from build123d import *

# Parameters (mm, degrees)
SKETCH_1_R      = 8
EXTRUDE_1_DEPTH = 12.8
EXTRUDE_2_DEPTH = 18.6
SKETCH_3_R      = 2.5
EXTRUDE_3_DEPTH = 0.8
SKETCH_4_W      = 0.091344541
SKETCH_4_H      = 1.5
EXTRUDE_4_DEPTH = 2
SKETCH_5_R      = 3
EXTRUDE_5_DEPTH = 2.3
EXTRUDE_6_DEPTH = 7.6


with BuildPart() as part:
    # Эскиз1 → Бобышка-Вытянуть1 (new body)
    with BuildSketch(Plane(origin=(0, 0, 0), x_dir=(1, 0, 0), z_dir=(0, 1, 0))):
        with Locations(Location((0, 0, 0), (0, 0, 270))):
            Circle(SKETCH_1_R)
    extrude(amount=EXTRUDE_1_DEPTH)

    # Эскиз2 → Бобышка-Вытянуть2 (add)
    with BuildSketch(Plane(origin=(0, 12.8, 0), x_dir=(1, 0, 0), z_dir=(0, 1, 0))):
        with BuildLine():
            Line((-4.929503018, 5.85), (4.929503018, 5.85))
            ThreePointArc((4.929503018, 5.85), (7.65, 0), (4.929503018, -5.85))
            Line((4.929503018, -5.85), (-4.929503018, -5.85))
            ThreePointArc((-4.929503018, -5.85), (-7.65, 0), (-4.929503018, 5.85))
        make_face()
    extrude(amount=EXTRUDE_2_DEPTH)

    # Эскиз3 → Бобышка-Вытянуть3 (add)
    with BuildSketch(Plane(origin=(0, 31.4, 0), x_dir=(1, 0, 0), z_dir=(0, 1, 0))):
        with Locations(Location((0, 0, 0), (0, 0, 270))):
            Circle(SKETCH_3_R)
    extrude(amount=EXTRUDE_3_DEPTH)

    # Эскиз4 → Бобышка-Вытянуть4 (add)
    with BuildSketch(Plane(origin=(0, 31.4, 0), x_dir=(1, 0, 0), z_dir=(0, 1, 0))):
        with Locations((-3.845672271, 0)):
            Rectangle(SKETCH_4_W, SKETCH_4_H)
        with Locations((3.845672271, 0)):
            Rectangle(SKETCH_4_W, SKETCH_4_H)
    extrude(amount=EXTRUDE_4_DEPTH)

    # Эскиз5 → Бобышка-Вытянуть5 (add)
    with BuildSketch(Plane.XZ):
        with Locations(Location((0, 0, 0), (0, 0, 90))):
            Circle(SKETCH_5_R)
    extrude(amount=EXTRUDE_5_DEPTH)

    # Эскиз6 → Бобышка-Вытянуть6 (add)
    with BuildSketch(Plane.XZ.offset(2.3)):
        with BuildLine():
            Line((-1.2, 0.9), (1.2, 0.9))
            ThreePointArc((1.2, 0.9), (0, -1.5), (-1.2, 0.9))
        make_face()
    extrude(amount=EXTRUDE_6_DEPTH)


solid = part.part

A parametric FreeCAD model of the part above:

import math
import FreeCAD as App
import Part
import Sketcher

V = App.Vector

doc = App.newDocument("Part")
params = doc.addObject("Spreadsheet::Sheet", "Params")
for row, (alias, value) in enumerate([
    ("sketch1_diameter", "16 mm"),
    ("pad1_length", "12.8 mm"),
    ("sketch2_radius", "7.65 mm"),
    ("pad2_length", "18.6 mm"),
    ("sketch3_diameter", "5 mm"),
    ("pad3_length", "0.8 mm"),
    ("sketch4_height", "1.5 mm"),
    ("pad4_length", "2 mm"),
    ("sketch5_diameter", "6 mm"),
    ("pad5_length", "2.3 mm"),
    ("sketch6_radius", "1.5 mm"),
    ("sketch6_width", "2.4 mm"),
    ("pad6_length", "7.6 mm"),
], start=1):
    params.set(f"A{row}", alias)
    params.set(f"B{row}", "=" + value)
    params.setAlias(f"B{row}", alias)

body = doc.addObject("PartDesign::Body", "Body")

# Sketch on XZ plane
sketch1 = body.newObject("Sketcher::SketchObject", "Sketch")
sketch1.AttachmentSupport = (doc.getObject("XZ_Plane"), [""])
sketch1.MapMode = "FlatFace"
sketch1.addGeometry(Part.Circle(V(0, 0, 0), V(0, 0, 1), 8), False)
sketch1.addConstraint([
    Sketcher.Constraint("Coincident", 0, 3, -1, 1),
    Sketcher.Constraint("Diameter", 0, 16.0),
])
sketch1.setExpression("Constraints[1]", "Params.sketch1_diameter")
pad1 = body.newObject("PartDesign::Pad", "Pad")
pad1.Profile = sketch1
pad1.setExpression("Length", "Params.pad1_length")
pad1.Reversed = True

# Sketch on XZ plane
sketch2 = body.newObject("Sketcher::SketchObject", "Sketch001")
sketch2.AttachmentSupport = (doc.getObject("XZ_Plane"), [""])
sketch2.MapMode = "FlatFace"
sketch2.AttachmentOffset = App.Placement(V(0, 0, -12.8), App.Rotation())
sketch2.addGeometry([
    Part.LineSegment(V(5, -6, 0), V(-5, -6, 0)),
    Part.ArcOfCircle(Part.Circle(V(0, 0, 0), V(0, 0, 1), 8), math.radians(130), math.radians(230)),
    Part.LineSegment(V(-5, 6, 0), V(5, 6, 0)),
    Part.ArcOfCircle(Part.Circle(V(0, 0, 0), V(0, 0, 1), 8), math.radians(-50), math.radians(50)),
], False)
sketch2.addConstraint([
    Sketcher.Constraint("Coincident", 0, 2, 1, 2),
    Sketcher.Constraint("Coincident", 1, 1, 2, 1),
    Sketcher.Constraint("Coincident", 2, 2, 3, 2),
    Sketcher.Constraint("Coincident", 3, 1, 0, 1),
    Sketcher.Constraint("Horizontal", 0),
    Sketcher.Constraint("Horizontal", 2),
    Sketcher.Constraint("Coincident", 1, 3, -1, 1),
    Sketcher.Constraint("Coincident", 3, 3, -1, 1),
    Sketcher.Constraint("Equal", 1, 3),
    Sketcher.Constraint("Vertical", 0, 2, 1, 1),
    Sketcher.Constraint("Radius", 1, 7.65),
    Sketcher.Constraint("DistanceY", 0, 2, 1, 1, 11.7),
])
sketch2.setExpression("Constraints[10]", "Params.sketch2_radius")
pad2 = body.newObject("PartDesign::Pad", "Pad001")
pad2.Profile = sketch2
pad2.setExpression("Length", "Params.pad2_length")
pad2.Reversed = True

# Sketch on XZ plane
sketch3 = body.newObject("Sketcher::SketchObject", "Sketch002")
sketch3.AttachmentSupport = (doc.getObject("XZ_Plane"), [""])
sketch3.MapMode = "FlatFace"
sketch3.AttachmentOffset = App.Placement(V(0, 0, -31.4), App.Rotation())
sketch3.addGeometry(Part.Circle(V(0, 0, 0), V(0, 0, 1), 2.5), False)
sketch3.addConstraint([
    Sketcher.Constraint("Coincident", 0, 3, -1, 1),
    Sketcher.Constraint("Diameter", 0, 5.0),
])
sketch3.setExpression("Constraints[1]", "Params.sketch3_diameter")
pad3 = body.newObject("PartDesign::Pad", "Pad002")
pad3.Profile = sketch3
pad3.setExpression("Length", "Params.pad3_length")
pad3.Reversed = True

# Sketch on XZ plane
sketch4 = body.newObject("Sketcher::SketchObject", "Sketch003")
sketch4.AttachmentSupport = (doc.getObject("XZ_Plane"), [""])
sketch4.MapMode = "FlatFace"
sketch4.AttachmentOffset = App.Placement(V(0, 0, -31.4), App.Rotation())
sketch4.addGeometry([
    Part.LineSegment(V(-3.89, -0.75, 0), V(-3.89, 0.75, 0)),  # 0
    Part.LineSegment(V(-3.89, 0.75, 0), V(-3.8, 0.75, 0)),  # 1
    Part.LineSegment(V(-3.8, 0.75, 0), V(-3.8, -0.75, 0)),  # 2
    Part.LineSegment(V(-3.8, -0.75, 0), V(-3.89, -0.75, 0)),  # 3
    Part.LineSegment(V(3.8, -0.75, 0), V(3.8, 0.75, 0)),  # 4
    Part.LineSegment(V(3.8, 0.75, 0), V(3.89, 0.75, 0)),  # 5
    Part.LineSegment(V(3.89, 0.75, 0), V(3.89, -0.75, 0)),  # 6
    Part.LineSegment(V(3.89, -0.75, 0), V(3.8, -0.75, 0)),  # 7
], False)
sketch4.addConstraint([
    Sketcher.Constraint("Coincident", 0, 2, 1, 1),
    Sketcher.Constraint("Coincident", 1, 2, 2, 1),
    Sketcher.Constraint("Coincident", 2, 2, 3, 1),
    Sketcher.Constraint("Coincident", 3, 2, 0, 1),
    Sketcher.Constraint("Coincident", 4, 2, 5, 1),
    Sketcher.Constraint("Coincident", 5, 2, 6, 1),
    Sketcher.Constraint("Coincident", 6, 2, 7, 1),
    Sketcher.Constraint("Coincident", 7, 2, 4, 1),
    Sketcher.Constraint("Vertical", 0),
    Sketcher.Constraint("Horizontal", 1),
    Sketcher.Constraint("Vertical", 2),
    Sketcher.Constraint("Horizontal", 3),
    Sketcher.Constraint("Vertical", 4),
    Sketcher.Constraint("Horizontal", 5),
    Sketcher.Constraint("Vertical", 6),
    Sketcher.Constraint("Horizontal", 7),
    Sketcher.Constraint("Symmetric", 2, 2, 4, 2, -1, 1),
    Sketcher.Constraint("Symmetric", 0, 2, 6, 2, -1, 1),
    Sketcher.Constraint("Horizontal", 1, 2, 4, 2),
    Sketcher.Constraint("DistanceY", 0, 1, 0, 2, 1.5),
    Sketcher.Constraint("DistanceX", 1, 2, -1, 1, 3.8),
    Sketcher.Constraint("DistanceX", 1, 1, 1, 2, 0.091345),
])
sketch4.setExpression("Constraints[19]", "Params.sketch4_height")
pad4 = body.newObject("PartDesign::Pad", "Pad003")
pad4.Profile = sketch4
pad4.setExpression("Length", "Params.pad4_length")
pad4.Reversed = True

# Sketch on XZ plane
sketch5 = body.newObject("Sketcher::SketchObject", "Sketch004")
sketch5.AttachmentSupport = (doc.getObject("XZ_Plane"), [""])
sketch5.MapMode = "FlatFace"
sketch5.addGeometry(Part.Circle(V(0, 0, 0), V(0, 0, 1), 3), False)
sketch5.addConstraint([
    Sketcher.Constraint("Coincident", 0, 3, -1, 1),
    Sketcher.Constraint("Diameter", 0, 6.0),
])
sketch5.setExpression("Constraints[1]", "Params.sketch5_diameter")
pad5 = body.newObject("PartDesign::Pad", "Pad004")
pad5.Profile = sketch5
pad5.setExpression("Length", "Params.pad5_length")

# Sketch on XZ plane
sketch6 = body.newObject("Sketcher::SketchObject", "Sketch005")
sketch6.AttachmentSupport = (doc.getObject("XZ_Plane"), [""])
sketch6.MapMode = "FlatFace"
sketch6.AttachmentOffset = App.Placement(V(0, 0, 2.3), App.Rotation())
sketch6.addGeometry([
    Part.LineSegment(V(1.2, 0.9, 0), V(-1.2, 0.9, 0)),
    Part.ArcOfCircle(Part.Circle(V(0, 0, 0), V(0, 0, 1), 1.5), math.radians(143), math.radians(397)),
], False)
sketch6.addConstraint([
    Sketcher.Constraint("Coincident", 0, 1, 1, 2),
    Sketcher.Constraint("Coincident", 1, 1, 0, 2),
    Sketcher.Constraint("Horizontal", 0),
    Sketcher.Constraint("Coincident", 1, 3, -1, 1),
    Sketcher.Constraint("Radius", 1, 1.5),
    Sketcher.Constraint("DistanceX", 0, 2, 0, 1, 2.4),
])
sketch6.setExpression("Constraints[4]", "Params.sketch6_radius")
sketch6.setExpression("Constraints[5]", "Params.sketch6_width")
pad6 = body.newObject("PartDesign::Pad", "Pad005")
pad6.Profile = sketch6
pad6.setExpression("Length", "Params.pad6_length")

doc.recompute()
